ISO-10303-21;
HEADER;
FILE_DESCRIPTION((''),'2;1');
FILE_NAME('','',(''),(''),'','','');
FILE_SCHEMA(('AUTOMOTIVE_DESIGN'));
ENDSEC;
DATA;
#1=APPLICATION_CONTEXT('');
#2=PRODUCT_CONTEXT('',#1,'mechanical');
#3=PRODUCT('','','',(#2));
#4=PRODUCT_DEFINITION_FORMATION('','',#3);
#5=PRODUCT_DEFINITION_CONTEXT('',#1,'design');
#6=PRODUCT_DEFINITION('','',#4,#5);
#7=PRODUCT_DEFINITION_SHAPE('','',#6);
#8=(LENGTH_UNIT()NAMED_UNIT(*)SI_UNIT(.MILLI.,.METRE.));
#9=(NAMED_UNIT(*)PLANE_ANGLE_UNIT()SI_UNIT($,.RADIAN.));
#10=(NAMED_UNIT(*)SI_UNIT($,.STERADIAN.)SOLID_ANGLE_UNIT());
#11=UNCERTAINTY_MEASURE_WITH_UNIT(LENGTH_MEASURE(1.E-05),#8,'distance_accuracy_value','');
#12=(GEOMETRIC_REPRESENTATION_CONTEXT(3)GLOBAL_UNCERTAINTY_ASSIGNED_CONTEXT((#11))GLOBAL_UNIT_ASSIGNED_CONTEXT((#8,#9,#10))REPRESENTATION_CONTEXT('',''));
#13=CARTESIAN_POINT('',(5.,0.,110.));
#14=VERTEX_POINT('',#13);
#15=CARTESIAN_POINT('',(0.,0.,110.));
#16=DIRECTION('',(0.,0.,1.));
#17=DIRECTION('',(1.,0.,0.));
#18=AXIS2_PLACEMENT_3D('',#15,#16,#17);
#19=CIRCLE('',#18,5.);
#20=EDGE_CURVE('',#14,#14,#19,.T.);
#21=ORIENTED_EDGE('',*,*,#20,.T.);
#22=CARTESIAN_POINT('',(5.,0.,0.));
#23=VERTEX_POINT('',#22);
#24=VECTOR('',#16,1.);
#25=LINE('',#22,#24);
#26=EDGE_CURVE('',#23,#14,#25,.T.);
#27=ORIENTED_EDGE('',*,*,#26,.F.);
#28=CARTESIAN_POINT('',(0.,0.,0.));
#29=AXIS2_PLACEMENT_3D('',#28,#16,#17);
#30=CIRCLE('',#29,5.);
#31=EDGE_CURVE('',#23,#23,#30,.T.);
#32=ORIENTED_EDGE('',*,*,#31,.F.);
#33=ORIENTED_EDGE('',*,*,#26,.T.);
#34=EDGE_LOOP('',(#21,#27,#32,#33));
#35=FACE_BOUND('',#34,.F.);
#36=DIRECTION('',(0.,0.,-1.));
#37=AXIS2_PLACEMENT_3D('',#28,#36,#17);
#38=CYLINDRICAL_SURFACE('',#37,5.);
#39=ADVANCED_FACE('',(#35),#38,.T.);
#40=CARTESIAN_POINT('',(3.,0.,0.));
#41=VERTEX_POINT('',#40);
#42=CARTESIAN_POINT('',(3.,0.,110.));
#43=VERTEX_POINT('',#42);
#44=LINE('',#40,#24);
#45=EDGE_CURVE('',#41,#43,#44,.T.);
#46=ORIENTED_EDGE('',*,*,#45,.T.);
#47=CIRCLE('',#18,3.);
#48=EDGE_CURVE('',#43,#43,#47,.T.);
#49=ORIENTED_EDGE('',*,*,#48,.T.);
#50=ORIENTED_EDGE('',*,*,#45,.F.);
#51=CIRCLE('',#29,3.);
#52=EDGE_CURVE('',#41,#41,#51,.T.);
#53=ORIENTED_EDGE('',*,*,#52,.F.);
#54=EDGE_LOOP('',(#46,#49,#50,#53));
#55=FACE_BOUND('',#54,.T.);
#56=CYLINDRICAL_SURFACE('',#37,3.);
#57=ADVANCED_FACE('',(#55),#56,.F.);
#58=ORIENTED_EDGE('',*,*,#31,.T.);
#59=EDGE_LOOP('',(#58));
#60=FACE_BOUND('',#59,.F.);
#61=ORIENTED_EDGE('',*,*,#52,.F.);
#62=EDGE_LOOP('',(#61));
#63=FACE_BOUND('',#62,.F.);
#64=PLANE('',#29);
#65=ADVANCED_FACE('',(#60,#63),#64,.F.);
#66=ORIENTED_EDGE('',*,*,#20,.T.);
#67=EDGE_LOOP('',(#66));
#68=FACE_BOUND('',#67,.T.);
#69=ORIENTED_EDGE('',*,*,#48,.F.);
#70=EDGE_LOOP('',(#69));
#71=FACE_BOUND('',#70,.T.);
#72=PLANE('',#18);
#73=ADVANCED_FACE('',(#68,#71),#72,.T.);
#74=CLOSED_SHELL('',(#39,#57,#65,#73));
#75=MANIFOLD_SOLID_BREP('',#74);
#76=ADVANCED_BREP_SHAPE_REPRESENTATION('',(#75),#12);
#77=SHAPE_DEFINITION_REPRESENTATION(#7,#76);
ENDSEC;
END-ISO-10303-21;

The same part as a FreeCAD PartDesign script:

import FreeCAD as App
import Part
import Sketcher

doc = App.newDocument("Part")
params = doc.addObject("Spreadsheet::Sheet", "Params")
for row, (alias, value) in enumerate([
    ("sketch1_diameter", "10 mm"),
    ("sketch1_diameter2", "6 mm"),
    ("pad1_length", "110 mm"),
], start=1):
    params.set(f"A{row}", alias)
    params.set(f"B{row}", "=" + value)
    params.setAlias(f"B{row}", alias)

body = doc.addObject("PartDesign::Body", "Body")

# Sketch on XY plane
sketch1 = body.newObject("Sketcher::SketchObject", "Sketch")
sketch1.AttachmentSupport = (doc.getObject("XY_Plane"), [""])
sketch1.MapMode = "FlatFace"
sketch1.addGeometry(Part.Circle(App.Vector(0, 0, 0), App.Vector(0, 0, 1), 5), False)
sketch1.addGeometry(Part.Circle(App.Vector(0, 0, 0), App.Vector(0, 0, 1), 3), False)
sketch1.addConstraint(Sketcher.Constraint("Coincident", 0, 3, -1, 1))
sketch1.addConstraint(Sketcher.Constraint("Coincident", 1, 3, -1, 1))
sketch1.addConstraint(Sketcher.Constraint("Diameter", 0, 10.0))
sketch1.addConstraint(Sketcher.Constraint("Diameter", 1, 6.0))
sketch1.setExpression("Constraints[2]", "Params.sketch1_diameter")
sketch1.setExpression("Constraints[3]", "Params.sketch1_diameter2")
pad1 = body.newObject("PartDesign::Pad", "Pad")
pad1.Profile = sketch1
pad1.setExpression("Length", "Params.pad1_length")

doc.recompute()
